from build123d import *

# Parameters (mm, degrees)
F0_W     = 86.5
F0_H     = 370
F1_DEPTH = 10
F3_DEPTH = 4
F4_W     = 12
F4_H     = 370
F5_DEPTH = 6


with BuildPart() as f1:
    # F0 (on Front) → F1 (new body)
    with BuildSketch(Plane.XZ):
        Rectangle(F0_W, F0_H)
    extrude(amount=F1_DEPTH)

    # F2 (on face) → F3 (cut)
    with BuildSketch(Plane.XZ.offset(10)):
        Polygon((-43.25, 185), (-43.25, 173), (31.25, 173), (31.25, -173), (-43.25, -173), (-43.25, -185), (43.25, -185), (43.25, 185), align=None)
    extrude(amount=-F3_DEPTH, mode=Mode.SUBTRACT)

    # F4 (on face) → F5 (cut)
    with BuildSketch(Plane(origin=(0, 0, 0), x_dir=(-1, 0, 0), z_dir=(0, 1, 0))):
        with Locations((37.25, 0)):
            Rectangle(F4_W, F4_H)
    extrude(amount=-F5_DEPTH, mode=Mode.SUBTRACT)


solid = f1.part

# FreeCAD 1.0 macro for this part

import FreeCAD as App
import Part
import Sketcher

doc = App.newDocument("Part")
params = doc.addObject("Spreadsheet::Sheet", "Params")
for row, (alias, value) in enumerate([
    ("sketch1_height", "370 mm"),
    ("sketch1_width", "86.5 mm"),
    ("pad1_length", "10 mm"),
    ("sketch2_height", "12 mm"),
    ("sketch2_height2", "346 mm"),
    ("sketch2_width", "74.5 mm"),
    ("sketch2_width2", "86.5 mm"),
    ("pocket1_length", "4 mm"),
    ("sketch3_width", "12 mm"),
    ("sketch3_height", "370 mm"),
    ("pocket2_length", "6 mm"),
], start=1):
    params.set(f"A{row}", alias)
    params.set(f"B{row}", "=" + value)
    params.setAlias(f"B{row}", alias)

body = doc.addObject("PartDesign::Body", "Body")

# Sketch on XZ plane
sketch1 = body.newObject("Sketcher::SketchObject", "Sketch")
sketch1.AttachmentSupport = (doc.getObject("XZ_Plane"), [""])
sketch1.MapMode = "FlatFace"
sketch1.addGeometry([
    Part.LineSegment(App.Vector(-43, 185, 0), App.Vector(-43, -185, 0)),
    Part.LineSegment(App.Vector(-43, -185, 0), App.Vector(43, -185, 0)),
    Part.LineSegment(App.Vector(43, -185, 0), App.Vector(43, 185, 0)),
    Part.LineSegment(App.Vector(43, 185, 0), App.Vector(-43, 185, 0)),
], False)
sketch1.addConstraint([
    Sketcher.Constraint("Coincident", 0, 2, 1, 1),
    Sketcher.Constraint("Coincident", 1, 2, 2, 1),
    Sketcher.Constraint("Coincident", 2, 2, 3, 1),
    Sketcher.Constraint("Coincident", 3, 2, 0, 1),
    Sketcher.Constraint("Vertical", 0),
    Sketcher.Constraint("Horizontal", 1),
    Sketcher.Constraint("Vertical", 2),
    Sketcher.Constraint("Horizontal", 3),
    Sketcher.Constraint("Symmetric", 0, 2, 2, 2, -1, 1),
    Sketcher.Constraint("DistanceY", 0, 2, 0, 1, 370.0),
    Sketcher.Constraint("DistanceX", 1, 1, 1, 2, 86.5),
])
sketch1.setExpression("Constraints[9]", "Params.sketch1_height")
sketch1.setExpression("Constraints[10]", "Params.sketch1_width")
pad1 = body.newObject("PartDesign::Pad", "Pad")
pad1.Profile = sketch1
pad1.setExpression("Length", "Params.pad1_length")

# Sketch on XZ plane
sketch2 = body.newObject("Sketcher::SketchObject", "Sketch001")
sketch2.AttachmentSupport = (doc.getObject("XZ_Plane"), [""])
sketch2.MapMode = "FlatFace"
sketch2.AttachmentOffset = App.Placement(App.Vector(0, 0, 10), App.Rotation())
sketch2.addGeometry([
    Part.LineSegment(App.Vector(-43, 185, 0), App.Vector(-43, 173, 0)),  # 0
    Part.LineSegment(App.Vector(-43, 173, 0), App.Vector(31, 173, 0)),  # 1
    Part.LineSegment(App.Vector(31, 173, 0), App.Vector(31, -173, 0)),  # 2
    Part.LineSegment(App.Vector(31, -173, 0), App.Vector(-43, -173, 0)),  # 3
    Part.LineSegment(App.Vector(-43, -173, 0), App.Vector(-43, -185, 0)),  # 4
    Part.LineSegment(App.Vector(-43, -185, 0), App.Vector(43, -185, 0)),  # 5
    Part.LineSegment(App.Vector(43, -185, 0), App.Vector(43, 185, 0)),  # 6
    Part.LineSegment(App.Vector(43, 185, 0), App.Vector(-43, 185, 0)),  # 7
], False)
sketch2.addConstraint([
    Sketcher.Constraint("Coincident", 0, 2, 1, 1),
    Sketcher.Constraint("Coincident", 1, 2, 2, 1),
    Sketcher.Constraint("Coincident", 2, 2, 3, 1),
    Sketcher.Constraint("Coincident", 3, 2, 4, 1),
    Sketcher.Constraint("Coincident", 4, 2, 5, 1),
    Sketcher.Constraint("Coincident", 5, 2, 6, 1),
    Sketcher.Constraint("Coincident", 6, 2, 7, 1),
    Sketcher.Constraint("Coincident", 7, 2, 0, 1),
    Sketcher.Constraint("Vertical", 0),
    Sketcher.Constraint("Horizontal", 1),
    Sketcher.Constraint("Vertical", 2),
    Sketcher.Constraint("Horizontal", 3),
    Sketcher.Constraint("Vertical", 4),
    Sketcher.Constraint("Horizontal", 5),
    Sketcher.Constraint("Vertical", 6),
    Sketcher.Constraint("Horizontal", 7),
    Sketcher.Constraint("Symmetric", 4, 2, 6, 2, -1, 1),
    Sketcher.Constraint("Symmetric", 0, 2, 3, 2, -1),
    Sketcher.Constraint("DistanceY", 0, 2, 0, 1, 12.0),
    Sketcher.Constraint("DistanceY", 2, 2, 2, 1, 346.0),
    Sketcher.Constraint("DistanceX", 1, 1, 1, 2, 74.5),
    Sketcher.Constraint("DistanceX", 5, 1, 5, 2, 86.5),
])
sketch2.setExpression("Constraints[18]", "Params.sketch2_height")
sketch2.setExpression("Constraints[19]", "Params.sketch2_height2")
sketch2.setExpression("Constraints[20]", "Params.sketch2_width")
sketch2.setExpression("Constraints[21]", "Params.sketch2_width2")
pocket1 = body.newObject("PartDesign::Pocket", "Pocket")
pocket1.Profile = sketch2
pocket1.setExpression("Length", "Params.pocket1_length")

# Sketch on XZ plane
sketch3 = body.newObject("Sketcher::SketchObject", "Sketch002")
sketch3.AttachmentSupport = (doc.getObject("XZ_Plane"), [""])
sketch3.MapMode = "FlatFace"
sketch3.addGeometry([
    Part.LineSegment(App.Vector(-31, 185, 0), App.Vector(-31, -185, 0)),
    Part.LineSegment(App.Vector(-31, -185, 0), App.Vector(-43, -185, 0)),
    Part.LineSegment(App.Vector(-43, -185, 0), App.Vector(-43, 185, 0)),
    Part.LineSegment(App.Vector(-43, 185, 0), App.Vector(-31, 185, 0)),
], False)
sketch3.addConstraint([
    Sketcher.Constraint("Coincident", 0, 2, 1, 1),
    Sketcher.Constraint("Coincident", 1, 2, 2, 1),
    Sketcher.Constraint("Coincident", 2, 2, 3, 1),
    Sketcher.Constraint("Coincident", 3, 2, 0, 1),
    Sketcher.Constraint("Vertical", 0),
    Sketcher.Constraint("Horizontal", 1),
    Sketcher.Constraint("Vertical", 2),
    Sketcher.Constraint("Horizontal", 3),
    Sketcher.Constraint("DistanceX", 1, 2, 1, 1, 12.0),
    Sketcher.Constraint("DistanceY", 0, 2, 0, 1, 370.0),
    Sketcher.Constraint("DistanceY", 0, 2, -1, 1, 185.0),
    Sketcher.Constraint("DistanceX", 0, 2, -1, 1, 31.25),
])
sketch3.setExpression("Constraints[8]", "Params.sketch3_width")
sketch3.setExpression("Constraints[9]", "Params.sketch3_height")
pocket2 = body.newObject("PartDesign::Pocket", "Pocket001")
pocket2.Profile = sketch3
pocket2.setExpression("Length", "Params.pocket2_length")
pocket2.Reversed = True

doc.recompute()
